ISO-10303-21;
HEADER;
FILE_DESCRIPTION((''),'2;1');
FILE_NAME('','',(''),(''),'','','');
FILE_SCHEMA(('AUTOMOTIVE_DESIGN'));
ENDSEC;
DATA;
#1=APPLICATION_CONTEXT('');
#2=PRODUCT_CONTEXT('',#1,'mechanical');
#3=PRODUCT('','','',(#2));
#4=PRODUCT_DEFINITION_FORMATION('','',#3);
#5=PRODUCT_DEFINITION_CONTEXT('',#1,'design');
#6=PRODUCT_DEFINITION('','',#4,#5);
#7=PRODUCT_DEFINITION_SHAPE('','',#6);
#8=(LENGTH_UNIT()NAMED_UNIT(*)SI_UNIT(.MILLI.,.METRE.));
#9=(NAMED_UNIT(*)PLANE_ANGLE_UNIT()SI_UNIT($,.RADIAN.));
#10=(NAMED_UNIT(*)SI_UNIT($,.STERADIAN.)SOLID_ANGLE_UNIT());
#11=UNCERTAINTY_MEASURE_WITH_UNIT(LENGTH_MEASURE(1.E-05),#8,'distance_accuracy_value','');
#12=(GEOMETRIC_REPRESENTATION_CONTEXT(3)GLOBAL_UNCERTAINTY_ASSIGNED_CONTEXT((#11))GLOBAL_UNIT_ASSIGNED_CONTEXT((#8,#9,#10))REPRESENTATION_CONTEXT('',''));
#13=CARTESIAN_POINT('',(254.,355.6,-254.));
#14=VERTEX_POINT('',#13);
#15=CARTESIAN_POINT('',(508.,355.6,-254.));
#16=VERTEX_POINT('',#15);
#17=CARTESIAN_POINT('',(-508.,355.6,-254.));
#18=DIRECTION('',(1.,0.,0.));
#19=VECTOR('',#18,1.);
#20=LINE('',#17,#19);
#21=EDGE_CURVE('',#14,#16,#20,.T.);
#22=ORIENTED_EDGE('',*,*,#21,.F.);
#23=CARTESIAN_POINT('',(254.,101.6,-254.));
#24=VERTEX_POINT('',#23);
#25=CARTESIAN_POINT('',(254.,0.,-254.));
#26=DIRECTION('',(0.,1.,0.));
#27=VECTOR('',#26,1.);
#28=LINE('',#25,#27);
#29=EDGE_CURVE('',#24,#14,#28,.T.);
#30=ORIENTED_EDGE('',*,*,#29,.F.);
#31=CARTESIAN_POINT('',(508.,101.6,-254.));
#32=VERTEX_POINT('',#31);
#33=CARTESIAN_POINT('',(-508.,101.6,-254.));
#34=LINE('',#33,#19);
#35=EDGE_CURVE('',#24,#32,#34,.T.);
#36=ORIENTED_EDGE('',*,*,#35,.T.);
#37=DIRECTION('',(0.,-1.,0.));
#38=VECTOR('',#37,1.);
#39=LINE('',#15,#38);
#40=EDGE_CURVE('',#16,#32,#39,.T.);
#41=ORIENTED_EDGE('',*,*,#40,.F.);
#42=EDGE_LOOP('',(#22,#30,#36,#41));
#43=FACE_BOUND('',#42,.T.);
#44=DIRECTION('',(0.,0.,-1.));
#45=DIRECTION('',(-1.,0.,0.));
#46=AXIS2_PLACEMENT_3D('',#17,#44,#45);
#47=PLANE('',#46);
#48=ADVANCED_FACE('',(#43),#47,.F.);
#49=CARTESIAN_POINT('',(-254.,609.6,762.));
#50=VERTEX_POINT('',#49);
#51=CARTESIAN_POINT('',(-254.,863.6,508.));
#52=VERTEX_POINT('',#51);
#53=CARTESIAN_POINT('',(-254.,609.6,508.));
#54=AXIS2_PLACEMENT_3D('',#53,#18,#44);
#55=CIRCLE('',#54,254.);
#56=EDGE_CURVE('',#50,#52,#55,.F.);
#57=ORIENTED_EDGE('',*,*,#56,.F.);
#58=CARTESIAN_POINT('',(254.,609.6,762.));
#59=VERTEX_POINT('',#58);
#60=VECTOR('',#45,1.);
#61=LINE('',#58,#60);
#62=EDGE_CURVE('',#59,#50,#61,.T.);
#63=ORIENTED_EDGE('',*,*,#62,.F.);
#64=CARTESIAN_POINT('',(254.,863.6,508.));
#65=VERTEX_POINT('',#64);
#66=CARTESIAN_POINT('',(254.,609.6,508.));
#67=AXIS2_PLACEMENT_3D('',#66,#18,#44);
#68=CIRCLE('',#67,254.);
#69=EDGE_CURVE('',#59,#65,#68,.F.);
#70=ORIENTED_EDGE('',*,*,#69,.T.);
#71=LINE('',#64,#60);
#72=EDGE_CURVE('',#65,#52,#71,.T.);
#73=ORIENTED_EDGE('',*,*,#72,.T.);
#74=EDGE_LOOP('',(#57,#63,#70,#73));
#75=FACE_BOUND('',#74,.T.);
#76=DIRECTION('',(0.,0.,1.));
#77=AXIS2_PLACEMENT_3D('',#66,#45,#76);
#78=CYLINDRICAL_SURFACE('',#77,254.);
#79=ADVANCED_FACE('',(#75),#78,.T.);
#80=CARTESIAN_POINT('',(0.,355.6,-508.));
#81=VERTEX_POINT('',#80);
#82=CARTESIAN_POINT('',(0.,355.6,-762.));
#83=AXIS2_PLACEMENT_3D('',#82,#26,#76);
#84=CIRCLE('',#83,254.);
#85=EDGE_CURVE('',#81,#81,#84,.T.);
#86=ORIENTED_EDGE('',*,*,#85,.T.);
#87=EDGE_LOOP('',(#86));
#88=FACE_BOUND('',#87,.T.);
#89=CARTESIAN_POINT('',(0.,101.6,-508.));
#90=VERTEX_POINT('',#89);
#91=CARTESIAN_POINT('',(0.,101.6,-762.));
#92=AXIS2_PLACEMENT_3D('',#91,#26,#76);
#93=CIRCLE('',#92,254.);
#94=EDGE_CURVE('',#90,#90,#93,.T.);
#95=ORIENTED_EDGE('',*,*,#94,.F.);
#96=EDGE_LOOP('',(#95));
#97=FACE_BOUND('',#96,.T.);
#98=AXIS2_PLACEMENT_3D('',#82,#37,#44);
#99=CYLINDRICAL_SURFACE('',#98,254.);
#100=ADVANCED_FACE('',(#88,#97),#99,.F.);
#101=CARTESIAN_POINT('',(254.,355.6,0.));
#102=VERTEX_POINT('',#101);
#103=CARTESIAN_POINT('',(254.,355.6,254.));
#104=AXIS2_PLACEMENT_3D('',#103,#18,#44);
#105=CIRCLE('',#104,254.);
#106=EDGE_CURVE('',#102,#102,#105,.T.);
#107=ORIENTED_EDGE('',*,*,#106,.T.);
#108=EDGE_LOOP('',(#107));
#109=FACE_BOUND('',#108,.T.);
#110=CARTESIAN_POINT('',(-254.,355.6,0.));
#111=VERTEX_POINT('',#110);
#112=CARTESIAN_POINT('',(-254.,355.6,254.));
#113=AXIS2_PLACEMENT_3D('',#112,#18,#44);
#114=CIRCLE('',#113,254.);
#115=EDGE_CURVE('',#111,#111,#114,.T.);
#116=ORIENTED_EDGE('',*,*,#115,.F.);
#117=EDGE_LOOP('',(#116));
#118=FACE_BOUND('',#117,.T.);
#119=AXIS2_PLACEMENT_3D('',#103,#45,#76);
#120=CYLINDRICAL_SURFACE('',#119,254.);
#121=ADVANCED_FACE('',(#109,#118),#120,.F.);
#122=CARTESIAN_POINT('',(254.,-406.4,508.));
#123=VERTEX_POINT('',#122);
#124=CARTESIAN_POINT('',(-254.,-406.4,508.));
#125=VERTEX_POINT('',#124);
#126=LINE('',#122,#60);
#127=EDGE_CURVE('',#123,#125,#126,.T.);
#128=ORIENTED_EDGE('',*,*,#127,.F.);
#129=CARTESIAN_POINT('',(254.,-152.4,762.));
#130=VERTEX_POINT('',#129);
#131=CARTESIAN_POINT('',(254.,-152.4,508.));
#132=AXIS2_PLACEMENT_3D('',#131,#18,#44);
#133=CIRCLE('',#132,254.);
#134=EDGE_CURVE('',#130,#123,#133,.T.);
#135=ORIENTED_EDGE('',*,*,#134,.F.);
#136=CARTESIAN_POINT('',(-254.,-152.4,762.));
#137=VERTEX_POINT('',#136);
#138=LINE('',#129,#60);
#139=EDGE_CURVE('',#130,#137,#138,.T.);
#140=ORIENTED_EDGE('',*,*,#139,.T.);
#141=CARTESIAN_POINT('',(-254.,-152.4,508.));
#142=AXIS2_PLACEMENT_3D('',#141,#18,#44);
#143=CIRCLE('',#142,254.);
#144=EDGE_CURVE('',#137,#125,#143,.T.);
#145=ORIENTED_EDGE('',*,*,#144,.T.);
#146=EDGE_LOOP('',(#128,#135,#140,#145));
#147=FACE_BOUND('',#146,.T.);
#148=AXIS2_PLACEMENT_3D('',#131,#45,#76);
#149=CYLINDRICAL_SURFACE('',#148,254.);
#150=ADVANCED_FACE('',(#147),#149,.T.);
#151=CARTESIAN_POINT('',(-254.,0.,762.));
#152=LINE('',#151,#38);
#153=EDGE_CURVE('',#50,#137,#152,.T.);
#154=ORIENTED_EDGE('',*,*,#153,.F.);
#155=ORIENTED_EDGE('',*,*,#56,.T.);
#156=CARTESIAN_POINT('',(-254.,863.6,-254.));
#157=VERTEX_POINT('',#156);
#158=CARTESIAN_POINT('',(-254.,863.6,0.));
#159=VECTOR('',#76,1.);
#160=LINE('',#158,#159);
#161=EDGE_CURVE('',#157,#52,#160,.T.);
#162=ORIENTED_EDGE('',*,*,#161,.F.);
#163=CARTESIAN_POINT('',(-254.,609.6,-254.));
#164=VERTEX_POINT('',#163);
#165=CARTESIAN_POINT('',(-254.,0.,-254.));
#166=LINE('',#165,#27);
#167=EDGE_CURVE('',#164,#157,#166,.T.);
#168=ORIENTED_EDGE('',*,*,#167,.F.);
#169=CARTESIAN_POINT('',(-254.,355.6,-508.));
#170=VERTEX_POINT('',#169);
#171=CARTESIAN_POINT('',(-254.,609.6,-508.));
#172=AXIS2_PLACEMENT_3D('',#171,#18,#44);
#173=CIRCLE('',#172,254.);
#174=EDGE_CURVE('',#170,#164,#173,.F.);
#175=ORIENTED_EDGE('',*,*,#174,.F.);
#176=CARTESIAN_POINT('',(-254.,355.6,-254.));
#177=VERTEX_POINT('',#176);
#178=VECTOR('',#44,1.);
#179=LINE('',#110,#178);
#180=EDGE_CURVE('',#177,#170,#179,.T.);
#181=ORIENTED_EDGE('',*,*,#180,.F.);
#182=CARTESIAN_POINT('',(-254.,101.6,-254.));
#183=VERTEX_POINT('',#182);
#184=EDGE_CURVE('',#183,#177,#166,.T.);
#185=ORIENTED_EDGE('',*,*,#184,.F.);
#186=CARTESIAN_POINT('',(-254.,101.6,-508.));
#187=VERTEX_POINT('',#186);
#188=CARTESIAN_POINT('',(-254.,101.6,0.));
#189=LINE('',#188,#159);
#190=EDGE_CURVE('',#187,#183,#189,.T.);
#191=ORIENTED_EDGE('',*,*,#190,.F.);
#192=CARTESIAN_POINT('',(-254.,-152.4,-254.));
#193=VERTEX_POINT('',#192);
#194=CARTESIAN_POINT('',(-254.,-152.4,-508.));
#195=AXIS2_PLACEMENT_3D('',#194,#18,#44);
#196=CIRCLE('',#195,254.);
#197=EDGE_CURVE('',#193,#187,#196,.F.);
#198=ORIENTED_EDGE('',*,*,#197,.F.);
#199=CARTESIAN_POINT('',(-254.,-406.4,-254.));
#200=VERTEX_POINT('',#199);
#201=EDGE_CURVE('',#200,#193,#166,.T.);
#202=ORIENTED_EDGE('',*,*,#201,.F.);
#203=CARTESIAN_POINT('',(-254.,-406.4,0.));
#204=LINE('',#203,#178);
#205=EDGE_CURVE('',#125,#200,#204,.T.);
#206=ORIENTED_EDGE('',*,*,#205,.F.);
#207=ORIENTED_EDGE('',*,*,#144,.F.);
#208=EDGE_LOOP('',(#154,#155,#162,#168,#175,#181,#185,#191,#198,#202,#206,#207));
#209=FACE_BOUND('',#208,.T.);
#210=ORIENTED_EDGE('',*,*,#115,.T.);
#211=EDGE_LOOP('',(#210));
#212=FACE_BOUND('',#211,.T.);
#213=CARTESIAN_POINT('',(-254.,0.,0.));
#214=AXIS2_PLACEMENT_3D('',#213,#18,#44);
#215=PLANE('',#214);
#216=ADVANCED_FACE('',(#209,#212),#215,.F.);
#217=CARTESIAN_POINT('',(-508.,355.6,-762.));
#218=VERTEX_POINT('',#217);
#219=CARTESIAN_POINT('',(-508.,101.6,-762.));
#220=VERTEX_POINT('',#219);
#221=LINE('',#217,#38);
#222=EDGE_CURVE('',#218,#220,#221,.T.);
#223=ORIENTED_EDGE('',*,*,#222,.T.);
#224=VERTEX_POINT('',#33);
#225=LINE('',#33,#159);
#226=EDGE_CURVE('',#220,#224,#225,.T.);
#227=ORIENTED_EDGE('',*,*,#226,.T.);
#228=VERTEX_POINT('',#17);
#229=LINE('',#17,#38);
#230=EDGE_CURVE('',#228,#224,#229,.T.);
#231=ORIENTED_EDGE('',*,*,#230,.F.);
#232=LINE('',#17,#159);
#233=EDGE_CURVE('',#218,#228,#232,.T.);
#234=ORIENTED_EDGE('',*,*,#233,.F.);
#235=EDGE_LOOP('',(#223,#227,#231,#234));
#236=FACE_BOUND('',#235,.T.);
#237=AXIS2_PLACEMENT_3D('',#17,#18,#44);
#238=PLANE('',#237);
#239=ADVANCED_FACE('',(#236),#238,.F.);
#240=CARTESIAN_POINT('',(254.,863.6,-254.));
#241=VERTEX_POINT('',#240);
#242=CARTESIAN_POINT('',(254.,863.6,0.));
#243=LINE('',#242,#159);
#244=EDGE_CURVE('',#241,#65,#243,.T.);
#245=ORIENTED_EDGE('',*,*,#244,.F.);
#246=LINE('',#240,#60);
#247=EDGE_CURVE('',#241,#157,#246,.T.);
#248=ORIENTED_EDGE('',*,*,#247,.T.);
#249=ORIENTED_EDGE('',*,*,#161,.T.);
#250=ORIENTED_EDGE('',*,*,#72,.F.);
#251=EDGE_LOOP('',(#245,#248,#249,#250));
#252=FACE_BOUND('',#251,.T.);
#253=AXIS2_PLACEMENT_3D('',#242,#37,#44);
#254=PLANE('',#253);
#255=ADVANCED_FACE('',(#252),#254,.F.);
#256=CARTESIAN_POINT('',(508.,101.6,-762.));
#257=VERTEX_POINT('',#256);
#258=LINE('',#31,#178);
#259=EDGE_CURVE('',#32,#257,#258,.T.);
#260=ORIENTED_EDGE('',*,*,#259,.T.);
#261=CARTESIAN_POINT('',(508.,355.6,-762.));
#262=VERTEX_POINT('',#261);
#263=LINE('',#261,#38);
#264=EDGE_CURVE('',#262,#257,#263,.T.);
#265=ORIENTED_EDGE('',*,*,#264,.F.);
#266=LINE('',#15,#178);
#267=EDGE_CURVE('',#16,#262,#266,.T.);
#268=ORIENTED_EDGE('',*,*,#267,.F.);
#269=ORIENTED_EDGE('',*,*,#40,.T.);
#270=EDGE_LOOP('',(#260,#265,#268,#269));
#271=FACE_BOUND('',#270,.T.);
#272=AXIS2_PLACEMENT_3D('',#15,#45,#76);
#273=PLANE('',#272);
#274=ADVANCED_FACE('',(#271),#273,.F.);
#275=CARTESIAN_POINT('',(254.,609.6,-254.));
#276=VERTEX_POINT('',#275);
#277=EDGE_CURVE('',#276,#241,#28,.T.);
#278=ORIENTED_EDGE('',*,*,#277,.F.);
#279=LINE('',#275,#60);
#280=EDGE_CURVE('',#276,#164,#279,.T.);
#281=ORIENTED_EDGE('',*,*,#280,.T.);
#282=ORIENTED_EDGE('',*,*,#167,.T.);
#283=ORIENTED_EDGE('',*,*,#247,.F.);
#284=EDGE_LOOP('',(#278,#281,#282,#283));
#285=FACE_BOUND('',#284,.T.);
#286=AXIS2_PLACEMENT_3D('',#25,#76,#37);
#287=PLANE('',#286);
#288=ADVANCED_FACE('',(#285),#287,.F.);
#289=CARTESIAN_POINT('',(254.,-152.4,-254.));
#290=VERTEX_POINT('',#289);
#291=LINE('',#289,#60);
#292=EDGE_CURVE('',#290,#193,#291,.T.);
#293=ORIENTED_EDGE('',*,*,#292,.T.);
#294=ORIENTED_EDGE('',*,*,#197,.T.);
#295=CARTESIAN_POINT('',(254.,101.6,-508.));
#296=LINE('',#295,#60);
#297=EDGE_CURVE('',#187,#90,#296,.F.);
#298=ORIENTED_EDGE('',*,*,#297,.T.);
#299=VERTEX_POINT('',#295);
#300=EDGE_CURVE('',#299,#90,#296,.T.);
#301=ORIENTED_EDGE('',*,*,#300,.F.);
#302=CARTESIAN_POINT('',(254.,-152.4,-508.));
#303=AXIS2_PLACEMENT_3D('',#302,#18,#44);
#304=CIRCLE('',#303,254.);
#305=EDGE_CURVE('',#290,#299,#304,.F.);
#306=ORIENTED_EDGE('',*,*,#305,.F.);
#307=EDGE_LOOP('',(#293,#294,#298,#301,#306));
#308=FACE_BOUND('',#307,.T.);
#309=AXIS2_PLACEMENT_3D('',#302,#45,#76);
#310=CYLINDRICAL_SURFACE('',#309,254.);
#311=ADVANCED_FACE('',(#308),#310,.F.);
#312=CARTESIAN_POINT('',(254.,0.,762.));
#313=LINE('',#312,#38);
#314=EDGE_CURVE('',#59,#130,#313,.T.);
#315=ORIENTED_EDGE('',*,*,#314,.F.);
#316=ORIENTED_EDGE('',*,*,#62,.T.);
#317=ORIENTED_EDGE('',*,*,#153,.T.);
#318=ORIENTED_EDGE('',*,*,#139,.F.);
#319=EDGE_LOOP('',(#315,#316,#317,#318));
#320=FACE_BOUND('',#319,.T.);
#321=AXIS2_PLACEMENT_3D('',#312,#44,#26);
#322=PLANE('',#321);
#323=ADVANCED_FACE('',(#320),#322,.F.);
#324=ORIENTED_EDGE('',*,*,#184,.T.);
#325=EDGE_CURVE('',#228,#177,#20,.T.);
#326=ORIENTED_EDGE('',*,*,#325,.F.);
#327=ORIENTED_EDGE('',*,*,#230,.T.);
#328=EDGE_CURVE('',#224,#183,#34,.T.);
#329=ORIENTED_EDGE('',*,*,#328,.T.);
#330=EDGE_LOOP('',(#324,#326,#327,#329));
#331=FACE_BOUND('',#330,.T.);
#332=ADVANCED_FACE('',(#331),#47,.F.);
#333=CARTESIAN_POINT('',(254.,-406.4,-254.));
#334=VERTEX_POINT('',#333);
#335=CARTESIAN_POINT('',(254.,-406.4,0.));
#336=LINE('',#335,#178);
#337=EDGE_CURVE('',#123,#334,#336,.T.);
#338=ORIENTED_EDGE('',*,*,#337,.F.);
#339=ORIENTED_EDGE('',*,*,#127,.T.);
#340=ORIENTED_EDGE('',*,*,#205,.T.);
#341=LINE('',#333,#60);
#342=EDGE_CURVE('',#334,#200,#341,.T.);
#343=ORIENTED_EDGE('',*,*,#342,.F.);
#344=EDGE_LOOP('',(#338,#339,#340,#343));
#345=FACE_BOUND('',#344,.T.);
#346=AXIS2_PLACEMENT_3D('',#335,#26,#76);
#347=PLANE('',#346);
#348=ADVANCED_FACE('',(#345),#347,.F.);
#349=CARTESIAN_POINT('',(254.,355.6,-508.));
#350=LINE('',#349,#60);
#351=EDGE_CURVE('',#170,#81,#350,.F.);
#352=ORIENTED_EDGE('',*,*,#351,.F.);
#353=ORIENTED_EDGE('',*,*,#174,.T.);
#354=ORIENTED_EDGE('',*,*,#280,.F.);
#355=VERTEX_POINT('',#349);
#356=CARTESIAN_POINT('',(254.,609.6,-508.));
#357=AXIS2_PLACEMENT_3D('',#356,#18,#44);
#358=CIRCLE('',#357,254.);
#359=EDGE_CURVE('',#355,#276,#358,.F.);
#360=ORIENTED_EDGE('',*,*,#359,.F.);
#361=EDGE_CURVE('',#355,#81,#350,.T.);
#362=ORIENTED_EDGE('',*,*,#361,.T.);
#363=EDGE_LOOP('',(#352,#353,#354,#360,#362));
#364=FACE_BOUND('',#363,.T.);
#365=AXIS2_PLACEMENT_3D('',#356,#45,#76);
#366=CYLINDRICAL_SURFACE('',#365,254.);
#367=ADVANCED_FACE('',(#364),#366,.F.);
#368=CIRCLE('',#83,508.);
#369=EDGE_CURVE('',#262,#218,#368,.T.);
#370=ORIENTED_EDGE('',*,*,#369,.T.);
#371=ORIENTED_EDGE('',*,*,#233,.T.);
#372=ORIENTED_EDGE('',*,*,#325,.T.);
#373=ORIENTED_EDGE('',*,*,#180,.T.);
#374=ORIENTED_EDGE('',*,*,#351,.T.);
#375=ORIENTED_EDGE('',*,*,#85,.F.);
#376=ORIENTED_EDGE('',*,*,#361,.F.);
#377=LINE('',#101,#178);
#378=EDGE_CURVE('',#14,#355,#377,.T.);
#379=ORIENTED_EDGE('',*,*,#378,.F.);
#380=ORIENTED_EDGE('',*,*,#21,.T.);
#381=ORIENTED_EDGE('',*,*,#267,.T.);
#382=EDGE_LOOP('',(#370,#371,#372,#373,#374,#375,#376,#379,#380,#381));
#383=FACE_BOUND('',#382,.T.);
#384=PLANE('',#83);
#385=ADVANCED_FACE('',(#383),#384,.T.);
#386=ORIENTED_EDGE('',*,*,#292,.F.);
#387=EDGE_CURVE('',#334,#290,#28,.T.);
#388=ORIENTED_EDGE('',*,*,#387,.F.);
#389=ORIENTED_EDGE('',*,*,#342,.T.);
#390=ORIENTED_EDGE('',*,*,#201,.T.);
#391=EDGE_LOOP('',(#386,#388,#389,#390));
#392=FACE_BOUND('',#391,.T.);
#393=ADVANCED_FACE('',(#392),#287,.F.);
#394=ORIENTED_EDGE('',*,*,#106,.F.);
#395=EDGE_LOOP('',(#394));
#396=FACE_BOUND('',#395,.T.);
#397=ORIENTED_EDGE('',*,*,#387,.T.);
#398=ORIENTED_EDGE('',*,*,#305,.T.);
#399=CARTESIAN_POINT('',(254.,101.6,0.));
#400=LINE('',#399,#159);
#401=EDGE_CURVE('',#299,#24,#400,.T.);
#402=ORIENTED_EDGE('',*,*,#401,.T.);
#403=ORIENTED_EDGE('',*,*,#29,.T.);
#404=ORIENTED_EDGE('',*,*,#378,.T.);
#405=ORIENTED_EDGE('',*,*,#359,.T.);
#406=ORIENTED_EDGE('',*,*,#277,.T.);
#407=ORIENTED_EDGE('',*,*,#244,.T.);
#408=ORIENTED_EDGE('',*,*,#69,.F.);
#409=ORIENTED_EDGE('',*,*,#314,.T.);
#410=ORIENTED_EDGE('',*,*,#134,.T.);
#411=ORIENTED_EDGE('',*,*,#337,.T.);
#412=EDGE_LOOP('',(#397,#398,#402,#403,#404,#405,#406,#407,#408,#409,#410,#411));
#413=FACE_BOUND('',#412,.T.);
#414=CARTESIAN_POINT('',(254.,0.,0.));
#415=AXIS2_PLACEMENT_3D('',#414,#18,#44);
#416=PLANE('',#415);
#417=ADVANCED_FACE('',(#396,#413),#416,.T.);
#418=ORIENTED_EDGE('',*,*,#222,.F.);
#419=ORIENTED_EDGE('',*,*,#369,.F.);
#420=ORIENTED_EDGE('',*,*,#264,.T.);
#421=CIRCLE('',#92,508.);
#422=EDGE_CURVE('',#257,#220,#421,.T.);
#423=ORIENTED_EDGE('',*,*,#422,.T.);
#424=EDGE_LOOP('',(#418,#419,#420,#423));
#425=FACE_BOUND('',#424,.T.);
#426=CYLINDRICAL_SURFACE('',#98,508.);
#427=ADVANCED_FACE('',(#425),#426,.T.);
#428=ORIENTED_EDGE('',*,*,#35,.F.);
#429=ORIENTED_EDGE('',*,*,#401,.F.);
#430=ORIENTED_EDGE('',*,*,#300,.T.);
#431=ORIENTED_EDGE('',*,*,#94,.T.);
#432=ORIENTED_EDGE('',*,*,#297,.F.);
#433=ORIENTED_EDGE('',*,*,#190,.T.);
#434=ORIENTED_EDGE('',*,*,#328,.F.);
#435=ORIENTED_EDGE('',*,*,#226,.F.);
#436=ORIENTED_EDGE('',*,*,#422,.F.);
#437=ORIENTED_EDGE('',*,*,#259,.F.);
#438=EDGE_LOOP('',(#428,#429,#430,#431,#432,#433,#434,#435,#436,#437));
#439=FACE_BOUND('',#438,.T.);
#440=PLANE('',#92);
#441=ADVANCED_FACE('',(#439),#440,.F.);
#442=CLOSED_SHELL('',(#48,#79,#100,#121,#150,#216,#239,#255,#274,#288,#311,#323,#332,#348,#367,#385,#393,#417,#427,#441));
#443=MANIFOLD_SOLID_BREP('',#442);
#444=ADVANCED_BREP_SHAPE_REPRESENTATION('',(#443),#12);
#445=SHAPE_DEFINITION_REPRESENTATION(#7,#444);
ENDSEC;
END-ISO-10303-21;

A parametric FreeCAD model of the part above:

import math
import FreeCAD as App
import Part
import Sketcher

V = App.Vector
Q = App.Units.Quantity

doc = App.newDocument("Part")
body = doc.addObject("PartDesign::Body", "Body")

# Sketch on YZ plane
sketch1 = body.newObject("Sketcher::SketchObject", "Sketch")
sketch1.AttachmentSupport = (doc.getObject("YZ_Plane"), [""])
sketch1.MapMode = "FlatFace"
sketch1.addGeometry(Part.LineSegment(V(610, 762, 0), V(-152, 762, 0)), False)
sketch1.addGeometry(Part.ArcOfCircle(Part.Circle(V(-152, 508, 0), V(0, 0, 1), 254), math.radians(90), math.radians(180)), False)
sketch1.addGeometry(Part.LineSegment(V(-406, 508, 0), V(-406, -254, 0)), False)
sketch1.addGeometry(Part.LineSegment(V(-406, -254, 0), V(-152, -254, 0)), False)
sketch1.addGeometry(Part.ArcOfCircle(Part.Circle(V(-152, -508, 0), V(0, 0, 1), 254), math.radians(0), math.radians(90)), False)
sketch1.addGeometry(Part.LineSegment(V(102, -508, 0), V(102, -254, 0)), False)
sketch1.addGeometry(Part.LineSegment(V(102, -254, 0), V(356, -254, 0)), False)
sketch1.addGeometry(Part.LineSegment(V(356, -254, 0), V(356, -508, 0)), False)
sketch1.addGeometry(Part.ArcOfCircle(Part.Circle(V(610, -508, 0), V(0, 0, 1), 254), math.radians(90), math.radians(180)), False)
sketch1.addGeometry(Part.LineSegment(V(610, -254, 0), V(864, -254, 0)), False)
sketch1.addGeometry(Part.LineSegment(V(864, -254, 0), V(864, 508, 0)), False)
sketch1.addGeometry(Part.ArcOfCircle(Part.Circle(V(610, 508, 0), V(0, 0, 1), 254), math.radians(0), math.radians(90)), False)
sketch1.addGeometry(Part.Circle(V(356, 254, 0), V(0, 0, 1), 254), False)
sketch1.addConstraint(Sketcher.Constraint("Tangent", 0, 2, 1, 1))
sketch1.addConstraint(Sketcher.Constraint("Tangent", 1, 2, 2, 1))
sketch1.addConstraint(Sketcher.Constraint("Coincident", 2, 2, 3, 1))
sketch1.addConstraint(Sketcher.Constraint("Tangent", 3, 2, 4, 2))
sketch1.addConstraint(Sketcher.Constraint("Tangent", 4, 1, 5, 1))
sketch1.addConstraint(Sketcher.Constraint("Coincident", 5, 2, 6, 1))
sketch1.addConstraint(Sketcher.Constraint("Coincident", 6, 2, 7, 1))
sketch1.addConstraint(Sketcher.Constraint("Tangent", 7, 2, 8, 2))
sketch1.addConstraint(Sketcher.Constraint("Tangent", 8, 1, 9, 1))
sketch1.addConstraint(Sketcher.Constraint("Coincident", 9, 2, 10, 1))
sketch1.addConstraint(Sketcher.Constraint("Tangent", 10, 2, 11, 1))
sketch1.addConstraint(Sketcher.Constraint("Tangent", 11, 2, 0, 1))
sketch1.addConstraint(Sketcher.Constraint("Horizontal", 0))
sketch1.addConstraint(Sketcher.Constraint("Vertical", 2))
sketch1.addConstraint(Sketcher.Constraint("Horizontal", 3))
sketch1.addConstraint(Sketcher.Constraint("Vertical", 5))
sketch1.addConstraint(Sketcher.Constraint("Horizontal", 6))
sketch1.addConstraint(Sketcher.Constraint("Vertical", 7))
sketch1.addConstraint(Sketcher.Constraint("Horizontal", 9))
sketch1.addConstraint(Sketcher.Constraint("Vertical", 10))
sketch1.addConstraint(Sketcher.Constraint("Equal", 1, 4))
sketch1.addConstraint(Sketcher.Constraint("Equal", 4, 8))
sketch1.addConstraint(Sketcher.Constraint("Equal", 8, 11))
sketch1.addConstraint(Sketcher.Constraint("Equal", 11, 12))
sketch1.addConstraint(Sketcher.Constraint("Symmetric", 1, 3, 4, 3, -1))
sketch1.addConstraint(Sketcher.Constraint("Symmetric", 8, 3, 11, 3, -1))
sketch1.addConstraint(Sketcher.Constraint("Horizontal", 3, 2, 5, 2))
sketch1.addConstraint(Sketcher.Constraint("Vertical", 12, 3, 6, 2))
sketch1.addConstraint(Sketcher.Constraint("Equal", 3, 6))
sketch1.addConstraint(Sketcher.Constraint("Equal", 0, 2))
sketch1.addConstraint(Sketcher.Constraint("Diameter", 12, Q("20 in")))
sketch1.addConstraint(Sketcher.Constraint("DistanceX", 1, 3, -1, 1, Q("6 in")))
sketch1.addConstraint(Sketcher.Constraint("DistanceY", -1, 1, 12, 3, Q("10 in")))
pad1 = body.newObject("PartDesign::Pad", "Pad")
pad1.Profile = sketch1
pad1.Length = Q("20 in")
pad1.Midplane = True

# Sketch on XZ plane
sketch2 = body.newObject("Sketcher::SketchObject", "Sketch001")
sketch2.AttachmentSupport = (doc.getObject("XZ_Plane"), [""])
sketch2.MapMode = "FlatFace"
sketch2.AttachmentOffset = App.Placement(V(0, 0, -4 * 25.4), App.Rotation())
sketch2.addGeometry(Part.LineSegment(V(-508, -254, 0), V(508, -254, 0)), False)
sketch2.addGeometry(Part.LineSegment(V(508, -254, 0), V(508, -762, 0)), False)
sketch2.addGeometry(Part.ArcOfCircle(Part.Circle(V(0, -762, 0), V(0, 0, 1), 508), math.radians(180), math.radians(360)), False)
sketch2.addGeometry(Part.LineSegment(V(-508, -762, 0), V(-508, -254, 0)), False)
sketch2.addGeometry(Part.Circle(V(0, -762, 0), V(0, 0, 1), 254), False)
sketch2.addConstraint(Sketcher.Constraint("Coincident", 0, 2, 1, 1))
sketch2.addConstraint(Sketcher.Constraint("Tangent", 1, 2, 2, 2))
sketch2.addConstraint(Sketcher.Constraint("Tangent", 2, 1, 3, 1))
sketch2.addConstraint(Sketcher.Constraint("Coincident", 3, 2, 0, 1))
sketch2.addConstraint(Sketcher.Constraint("Horizontal", 0))
sketch2.addConstraint(Sketcher.Constraint("Vertical", 1))
sketch2.addConstraint(Sketcher.Constraint("Vertical", 3))
sketch2.addConstraint(Sketcher.Constraint("Coincident", 4, 3, 2, 3))
sketch2.addConstraint(Sketcher.Constraint("PointOnObject", 2, 3, -2))
sketch2.addConstraint(Sketcher.Constraint("Diameter", 4, Q("20 in")))
sketch2.addConstraint(Sketcher.Constraint("Radius", 2, Q("20 in")))
sketch2.addConstraint(Sketcher.Constraint("DistanceY", 1, 2, 1, 1, Q("20 in")))
sketch2.addConstraint(Sketcher.Constraint("DistanceY", 2, 3, -1, 1, Q("30 in")))
pad2 = body.newObject("PartDesign::Pad", "Pad001")
pad2.Profile = sketch2
pad2.Length = Q("10 in")
pad2.Reversed = True

doc.recompute()
